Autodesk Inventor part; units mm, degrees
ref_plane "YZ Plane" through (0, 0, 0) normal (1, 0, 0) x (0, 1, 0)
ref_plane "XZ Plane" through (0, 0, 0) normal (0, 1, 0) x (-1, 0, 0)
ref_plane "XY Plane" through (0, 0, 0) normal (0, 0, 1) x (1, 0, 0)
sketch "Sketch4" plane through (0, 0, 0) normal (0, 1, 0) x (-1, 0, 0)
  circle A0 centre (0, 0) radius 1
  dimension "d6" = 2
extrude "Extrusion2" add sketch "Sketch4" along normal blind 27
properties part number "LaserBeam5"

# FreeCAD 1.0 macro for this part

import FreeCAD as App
import Part
import Sketcher

V = App.Vector
Q = App.Units.Quantity

doc = App.newDocument("Part")
params = doc.addObject("Spreadsheet::Sheet", "Params")
for row, (alias, value) in enumerate([
    ("sketch1_diameter", "2 mm"),
    ("pad1_length", "27 mm"),
], start=1):
    params.set(f"A{row}", alias)
    params.set(f"B{row}", "=" + value)
    params.setAlias(f"B{row}", alias)

body = doc.addObject("PartDesign::Body", "Body")

sketch1 = body.newObject("Sketcher::SketchObject", "Sketch")
sketch1.AttachmentSupport = (doc.getObject("XZ_Plane"), [""])
sketch1.MapMode = "FlatFace"
sketch1.addGeometry(Part.Circle(V(0, 0, 0), V(0, 0, 1), 1), False)
sketch1.addConstraint([
    Sketcher.Constraint("Coincident", 0, 3, -1, 1),
    Sketcher.Constraint("Diameter", 0, Q("2 mm")),
])
sketch1.setExpression("Constraints[1]", "Params.sketch1_diameter")
pad1 = body.newObject("PartDesign::Pad", "Pad")
pad1.Profile = sketch1
pad1.setExpression("Length", "Params.pad1_length")
pad1.Reversed = True

doc.recompute()
